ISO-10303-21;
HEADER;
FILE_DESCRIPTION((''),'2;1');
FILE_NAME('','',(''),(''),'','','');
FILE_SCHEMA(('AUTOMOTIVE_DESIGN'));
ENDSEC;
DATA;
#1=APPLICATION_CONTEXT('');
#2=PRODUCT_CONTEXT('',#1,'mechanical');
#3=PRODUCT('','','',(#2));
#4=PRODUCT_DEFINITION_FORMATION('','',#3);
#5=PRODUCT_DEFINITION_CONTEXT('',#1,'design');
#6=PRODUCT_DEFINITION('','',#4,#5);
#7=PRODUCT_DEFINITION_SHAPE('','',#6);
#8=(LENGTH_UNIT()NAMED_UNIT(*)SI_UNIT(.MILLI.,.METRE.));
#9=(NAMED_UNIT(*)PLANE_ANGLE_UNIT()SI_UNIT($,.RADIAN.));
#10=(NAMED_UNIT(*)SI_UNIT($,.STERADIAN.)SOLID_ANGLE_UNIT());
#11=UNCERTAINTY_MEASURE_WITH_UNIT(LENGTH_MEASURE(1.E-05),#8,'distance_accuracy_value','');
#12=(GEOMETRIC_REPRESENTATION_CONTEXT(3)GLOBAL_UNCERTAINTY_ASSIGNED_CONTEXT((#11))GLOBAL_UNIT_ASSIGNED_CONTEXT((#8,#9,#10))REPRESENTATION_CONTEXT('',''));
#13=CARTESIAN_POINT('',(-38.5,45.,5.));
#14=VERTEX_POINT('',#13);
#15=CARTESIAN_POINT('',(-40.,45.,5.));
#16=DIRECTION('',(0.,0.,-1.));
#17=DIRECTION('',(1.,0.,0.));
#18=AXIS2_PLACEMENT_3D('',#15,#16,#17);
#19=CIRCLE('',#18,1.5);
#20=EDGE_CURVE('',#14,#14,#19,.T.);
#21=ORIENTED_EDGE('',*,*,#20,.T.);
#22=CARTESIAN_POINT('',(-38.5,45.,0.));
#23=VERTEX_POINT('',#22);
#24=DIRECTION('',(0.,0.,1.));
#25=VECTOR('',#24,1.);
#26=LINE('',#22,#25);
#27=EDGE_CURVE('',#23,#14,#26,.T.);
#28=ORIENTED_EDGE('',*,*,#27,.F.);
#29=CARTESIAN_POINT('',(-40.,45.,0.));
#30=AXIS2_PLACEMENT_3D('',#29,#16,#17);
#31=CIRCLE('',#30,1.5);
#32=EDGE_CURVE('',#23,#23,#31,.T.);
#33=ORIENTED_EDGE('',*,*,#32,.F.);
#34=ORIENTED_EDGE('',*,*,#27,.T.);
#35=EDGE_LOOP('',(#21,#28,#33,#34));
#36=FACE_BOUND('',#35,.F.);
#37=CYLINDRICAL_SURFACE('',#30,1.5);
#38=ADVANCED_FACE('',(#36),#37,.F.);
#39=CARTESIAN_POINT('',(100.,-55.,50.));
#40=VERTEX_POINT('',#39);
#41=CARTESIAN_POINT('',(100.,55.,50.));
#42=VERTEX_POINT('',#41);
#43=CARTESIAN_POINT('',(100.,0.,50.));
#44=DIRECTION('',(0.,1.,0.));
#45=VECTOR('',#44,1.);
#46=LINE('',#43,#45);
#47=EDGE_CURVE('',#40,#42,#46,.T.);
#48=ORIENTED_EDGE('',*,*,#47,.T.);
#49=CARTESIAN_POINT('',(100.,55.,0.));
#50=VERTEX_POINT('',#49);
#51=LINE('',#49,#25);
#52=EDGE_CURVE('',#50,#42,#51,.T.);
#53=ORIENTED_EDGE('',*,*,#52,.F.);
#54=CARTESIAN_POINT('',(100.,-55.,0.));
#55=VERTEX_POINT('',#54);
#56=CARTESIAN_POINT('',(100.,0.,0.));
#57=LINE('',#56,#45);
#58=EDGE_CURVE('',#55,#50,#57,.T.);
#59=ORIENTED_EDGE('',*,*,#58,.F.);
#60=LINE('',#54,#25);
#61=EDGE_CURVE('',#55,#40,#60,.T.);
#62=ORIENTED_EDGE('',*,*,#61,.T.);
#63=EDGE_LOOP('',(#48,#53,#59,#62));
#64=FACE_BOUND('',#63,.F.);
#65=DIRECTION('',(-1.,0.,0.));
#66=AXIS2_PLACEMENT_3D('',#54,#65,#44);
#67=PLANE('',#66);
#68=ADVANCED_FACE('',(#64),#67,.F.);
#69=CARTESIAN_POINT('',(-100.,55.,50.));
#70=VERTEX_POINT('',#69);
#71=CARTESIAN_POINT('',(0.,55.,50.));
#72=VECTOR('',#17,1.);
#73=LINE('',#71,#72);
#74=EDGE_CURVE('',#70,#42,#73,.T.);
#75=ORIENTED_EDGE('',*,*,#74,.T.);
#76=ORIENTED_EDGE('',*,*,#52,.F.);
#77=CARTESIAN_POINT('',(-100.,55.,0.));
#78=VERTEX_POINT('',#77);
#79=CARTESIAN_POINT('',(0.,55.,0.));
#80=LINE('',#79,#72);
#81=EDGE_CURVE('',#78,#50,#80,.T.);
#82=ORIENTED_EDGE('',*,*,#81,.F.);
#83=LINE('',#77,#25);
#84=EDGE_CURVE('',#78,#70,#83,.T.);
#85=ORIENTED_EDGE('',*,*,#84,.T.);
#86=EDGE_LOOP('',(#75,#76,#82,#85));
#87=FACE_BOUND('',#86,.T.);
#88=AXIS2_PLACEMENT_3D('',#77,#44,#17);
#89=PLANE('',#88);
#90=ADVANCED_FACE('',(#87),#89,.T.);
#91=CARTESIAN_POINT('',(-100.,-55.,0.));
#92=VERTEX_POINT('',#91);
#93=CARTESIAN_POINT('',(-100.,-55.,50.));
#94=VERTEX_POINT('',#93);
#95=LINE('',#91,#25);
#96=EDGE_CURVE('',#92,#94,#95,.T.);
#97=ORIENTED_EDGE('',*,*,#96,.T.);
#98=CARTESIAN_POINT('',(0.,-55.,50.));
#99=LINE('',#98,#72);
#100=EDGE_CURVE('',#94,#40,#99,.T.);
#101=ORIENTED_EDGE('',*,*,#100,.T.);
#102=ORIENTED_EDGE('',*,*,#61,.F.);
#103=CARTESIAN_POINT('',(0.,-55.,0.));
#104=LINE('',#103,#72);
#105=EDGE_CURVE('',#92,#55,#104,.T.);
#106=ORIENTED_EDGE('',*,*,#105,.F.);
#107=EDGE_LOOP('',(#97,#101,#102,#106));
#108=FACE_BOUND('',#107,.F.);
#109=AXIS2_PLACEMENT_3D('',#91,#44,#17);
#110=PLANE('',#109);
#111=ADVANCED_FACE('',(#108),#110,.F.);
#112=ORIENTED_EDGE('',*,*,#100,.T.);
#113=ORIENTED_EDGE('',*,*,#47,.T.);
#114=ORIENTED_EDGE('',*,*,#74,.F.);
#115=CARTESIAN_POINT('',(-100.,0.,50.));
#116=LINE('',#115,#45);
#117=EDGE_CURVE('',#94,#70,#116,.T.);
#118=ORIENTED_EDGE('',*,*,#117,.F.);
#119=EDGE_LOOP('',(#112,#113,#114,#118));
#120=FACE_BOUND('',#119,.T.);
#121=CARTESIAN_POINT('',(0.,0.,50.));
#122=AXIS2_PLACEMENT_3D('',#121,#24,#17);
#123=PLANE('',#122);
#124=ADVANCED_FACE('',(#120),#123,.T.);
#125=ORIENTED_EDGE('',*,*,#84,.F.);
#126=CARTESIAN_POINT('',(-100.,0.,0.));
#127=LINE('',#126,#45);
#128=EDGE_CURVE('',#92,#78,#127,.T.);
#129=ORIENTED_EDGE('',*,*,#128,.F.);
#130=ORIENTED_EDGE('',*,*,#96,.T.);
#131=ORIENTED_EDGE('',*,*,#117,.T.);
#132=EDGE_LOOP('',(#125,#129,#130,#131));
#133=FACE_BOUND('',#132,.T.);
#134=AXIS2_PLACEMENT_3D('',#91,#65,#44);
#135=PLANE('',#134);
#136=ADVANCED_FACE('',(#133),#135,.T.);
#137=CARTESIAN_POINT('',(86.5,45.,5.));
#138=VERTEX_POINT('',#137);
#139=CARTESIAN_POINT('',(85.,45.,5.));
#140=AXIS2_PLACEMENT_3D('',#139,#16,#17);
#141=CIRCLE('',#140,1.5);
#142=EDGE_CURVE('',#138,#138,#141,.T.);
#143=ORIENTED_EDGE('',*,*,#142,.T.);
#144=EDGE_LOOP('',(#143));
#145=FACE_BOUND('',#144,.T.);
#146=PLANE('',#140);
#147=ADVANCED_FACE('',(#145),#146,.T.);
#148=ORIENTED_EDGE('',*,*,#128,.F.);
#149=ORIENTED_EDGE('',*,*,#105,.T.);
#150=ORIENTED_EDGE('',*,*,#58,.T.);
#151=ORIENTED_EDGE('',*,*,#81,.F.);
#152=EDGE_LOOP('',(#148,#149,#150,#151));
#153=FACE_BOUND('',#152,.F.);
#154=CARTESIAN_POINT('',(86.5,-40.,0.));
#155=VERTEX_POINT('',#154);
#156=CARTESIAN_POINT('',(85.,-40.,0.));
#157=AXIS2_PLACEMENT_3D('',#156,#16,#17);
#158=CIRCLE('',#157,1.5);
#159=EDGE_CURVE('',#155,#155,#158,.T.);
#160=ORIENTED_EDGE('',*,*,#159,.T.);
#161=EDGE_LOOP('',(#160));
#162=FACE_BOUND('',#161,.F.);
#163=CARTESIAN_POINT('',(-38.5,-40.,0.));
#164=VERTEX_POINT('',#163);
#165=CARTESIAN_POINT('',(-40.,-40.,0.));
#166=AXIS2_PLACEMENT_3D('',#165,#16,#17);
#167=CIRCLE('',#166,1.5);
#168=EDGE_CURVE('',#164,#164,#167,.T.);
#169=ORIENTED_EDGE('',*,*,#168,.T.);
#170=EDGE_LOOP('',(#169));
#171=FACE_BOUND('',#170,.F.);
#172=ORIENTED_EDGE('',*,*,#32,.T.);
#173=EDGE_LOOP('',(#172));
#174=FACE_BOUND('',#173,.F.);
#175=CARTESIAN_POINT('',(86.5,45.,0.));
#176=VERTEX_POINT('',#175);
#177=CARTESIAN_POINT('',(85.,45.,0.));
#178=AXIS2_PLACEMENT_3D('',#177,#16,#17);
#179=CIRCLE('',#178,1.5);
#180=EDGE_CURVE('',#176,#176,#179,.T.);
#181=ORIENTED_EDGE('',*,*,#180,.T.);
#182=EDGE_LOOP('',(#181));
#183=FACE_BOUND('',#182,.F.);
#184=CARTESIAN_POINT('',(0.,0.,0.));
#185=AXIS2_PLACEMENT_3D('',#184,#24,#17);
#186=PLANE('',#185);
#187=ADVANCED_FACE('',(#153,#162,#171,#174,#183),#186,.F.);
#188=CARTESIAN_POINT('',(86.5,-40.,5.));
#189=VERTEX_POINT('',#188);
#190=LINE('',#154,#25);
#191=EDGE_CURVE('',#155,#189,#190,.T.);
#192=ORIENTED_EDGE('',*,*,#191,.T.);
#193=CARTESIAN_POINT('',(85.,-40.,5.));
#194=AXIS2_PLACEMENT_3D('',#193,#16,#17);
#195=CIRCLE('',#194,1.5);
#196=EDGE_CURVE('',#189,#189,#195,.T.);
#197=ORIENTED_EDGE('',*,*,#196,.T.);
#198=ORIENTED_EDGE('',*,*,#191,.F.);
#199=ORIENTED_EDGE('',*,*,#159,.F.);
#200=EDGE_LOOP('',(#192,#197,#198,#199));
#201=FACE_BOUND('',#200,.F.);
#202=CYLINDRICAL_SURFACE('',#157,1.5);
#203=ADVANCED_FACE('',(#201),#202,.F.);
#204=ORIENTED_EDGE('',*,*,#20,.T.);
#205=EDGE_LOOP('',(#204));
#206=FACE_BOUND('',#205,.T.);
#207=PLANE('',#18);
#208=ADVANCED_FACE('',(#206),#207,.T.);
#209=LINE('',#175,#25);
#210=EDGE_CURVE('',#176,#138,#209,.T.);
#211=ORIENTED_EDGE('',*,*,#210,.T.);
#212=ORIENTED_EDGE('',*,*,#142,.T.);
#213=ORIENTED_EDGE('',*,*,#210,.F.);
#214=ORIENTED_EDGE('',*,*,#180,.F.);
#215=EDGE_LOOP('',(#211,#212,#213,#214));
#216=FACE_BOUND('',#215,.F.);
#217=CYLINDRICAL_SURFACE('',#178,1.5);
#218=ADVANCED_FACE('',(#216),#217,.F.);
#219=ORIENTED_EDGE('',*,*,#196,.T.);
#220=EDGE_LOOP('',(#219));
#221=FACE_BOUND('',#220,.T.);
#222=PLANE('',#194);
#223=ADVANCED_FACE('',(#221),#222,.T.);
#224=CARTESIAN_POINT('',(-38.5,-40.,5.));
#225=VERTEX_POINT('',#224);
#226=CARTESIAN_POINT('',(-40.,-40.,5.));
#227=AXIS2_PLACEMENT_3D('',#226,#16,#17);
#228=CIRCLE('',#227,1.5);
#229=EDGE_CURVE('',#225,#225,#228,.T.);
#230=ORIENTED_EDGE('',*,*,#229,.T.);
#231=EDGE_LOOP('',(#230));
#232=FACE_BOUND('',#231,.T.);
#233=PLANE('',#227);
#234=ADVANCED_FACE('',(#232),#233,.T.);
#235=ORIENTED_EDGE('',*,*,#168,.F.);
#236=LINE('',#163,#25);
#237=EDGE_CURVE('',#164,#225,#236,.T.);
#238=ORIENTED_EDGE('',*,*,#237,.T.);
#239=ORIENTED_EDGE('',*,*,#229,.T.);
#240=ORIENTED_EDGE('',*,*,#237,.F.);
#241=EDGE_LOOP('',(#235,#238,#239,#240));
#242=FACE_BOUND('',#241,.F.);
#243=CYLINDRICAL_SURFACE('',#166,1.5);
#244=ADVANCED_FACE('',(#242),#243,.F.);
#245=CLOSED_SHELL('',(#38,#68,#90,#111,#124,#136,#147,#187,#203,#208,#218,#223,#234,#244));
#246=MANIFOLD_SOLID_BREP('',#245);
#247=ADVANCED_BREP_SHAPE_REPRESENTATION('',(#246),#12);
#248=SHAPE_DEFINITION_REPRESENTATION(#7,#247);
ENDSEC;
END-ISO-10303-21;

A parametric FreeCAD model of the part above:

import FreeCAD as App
import Part
import Sketcher
from FreeCAD import Vector
Q = App.Units.Quantity

doc = App.newDocument("Part")
body = doc.addObject("PartDesign::Body", "Body")

# Sketch on XY plane
sketch1 = body.newObject("Sketcher::SketchObject", "Sketch")
sketch1.AttachmentSupport = (doc.getObject("XY_Plane"), [""])
sketch1.MapMode = "FlatFace"
sketch1.addGeometry(Part.LineSegment(Vector(-100, 55, 0), Vector(-100, -55, 0)), False)
sketch1.addGeometry(Part.LineSegment(Vector(-100, -55, 0), Vector(100, -55, 0)), False)
sketch1.addGeometry(Part.LineSegment(Vector(100, -55, 0), Vector(100, 55, 0)), False)
sketch1.addGeometry(Part.LineSegment(Vector(100, 55, 0), Vector(-100, 55, 0)), False)
sketch1.addConstraint(Sketcher.Constraint("Coincident", 0, 2, 1, 1))
sketch1.addConstraint(Sketcher.Constraint("Coincident", 1, 2, 2, 1))
sketch1.addConstraint(Sketcher.Constraint("Coincident", 2, 2, 3, 1))
sketch1.addConstraint(Sketcher.Constraint("Coincident", 3, 2, 0, 1))
sketch1.addConstraint(Sketcher.Constraint("Vertical", 0))
sketch1.addConstraint(Sketcher.Constraint("Horizontal", 1))
sketch1.addConstraint(Sketcher.Constraint("Vertical", 2))
sketch1.addConstraint(Sketcher.Constraint("Horizontal", 3))
sketch1.addConstraint(Sketcher.Constraint("Symmetric", 0, 2, 2, 2, -1, 1))
sketch1.addConstraint(Sketcher.Constraint("DistanceX", 1, 1, 1, 2, Q("200 mm")))
sketch1.addConstraint(Sketcher.Constraint("DistanceY", 0, 2, 0, 1, Q("110 mm")))
pad1 = body.newObject("PartDesign::Pad", "Pad")
pad1.Profile = sketch1
pad1.Length = 50

# Sketch on XY plane
sketch2 = body.newObject("Sketcher::SketchObject", "Sketch001")
sketch2.AttachmentSupport = (doc.getObject("XY_Plane"), [""])
sketch2.MapMode = "FlatFace"
sketch2.addGeometry(Part.Circle(Vector(-40, -40, 0), Vector(0, 0, 1), 1.5), False)
sketch2.addGeometry(Part.Circle(Vector(-40, 45, 0), Vector(0, 0, 1), 1.5), False)
sketch2.addGeometry(Part.Circle(Vector(85, 45, 0), Vector(0, 0, 1), 1.5), False)
sketch2.addGeometry(Part.Circle(Vector(85, -40, 0), Vector(0, 0, 1), 1.5), False)
sketch2.addConstraint(Sketcher.Constraint("Equal", 0, 1))
sketch2.addConstraint(Sketcher.Constraint("Equal", 1, 2))
sketch2.addConstraint(Sketcher.Constraint("Equal", 2, 3))
sketch2.addConstraint(Sketcher.Constraint("Horizontal", 1, 3, 2, 3))
sketch2.addConstraint(Sketcher.Constraint("Horizontal", 0, 3, 3, 3))
sketch2.addConstraint(Sketcher.Constraint("Vertical", 0, 3, 1, 3))
sketch2.addConstraint(Sketcher.Constraint("Vertical", 2, 3, 3, 3))
sketch2.addConstraint(Sketcher.Constraint("Diameter", 0, Q("3 mm")))
sketch2.addConstraint(Sketcher.Constraint("DistanceX", 0, 3, -1, 1, Q("40 mm")))
sketch2.addConstraint(Sketcher.Constraint("DistanceY", 0, 3, -1, 1, Q("40 mm")))
sketch2.addConstraint(Sketcher.Constraint("DistanceY", -1, 1, 1, 3, Q("45 mm")))
sketch2.addConstraint(Sketcher.Constraint("DistanceX", -1, 1, 2, 3, Q("85 mm")))
pocket1 = body.newObject("PartDesign::Pocket", "Pocket")
pocket1.Profile = sketch2
pocket1.Length = 5
pocket1.Reversed = True

doc.recompute()
